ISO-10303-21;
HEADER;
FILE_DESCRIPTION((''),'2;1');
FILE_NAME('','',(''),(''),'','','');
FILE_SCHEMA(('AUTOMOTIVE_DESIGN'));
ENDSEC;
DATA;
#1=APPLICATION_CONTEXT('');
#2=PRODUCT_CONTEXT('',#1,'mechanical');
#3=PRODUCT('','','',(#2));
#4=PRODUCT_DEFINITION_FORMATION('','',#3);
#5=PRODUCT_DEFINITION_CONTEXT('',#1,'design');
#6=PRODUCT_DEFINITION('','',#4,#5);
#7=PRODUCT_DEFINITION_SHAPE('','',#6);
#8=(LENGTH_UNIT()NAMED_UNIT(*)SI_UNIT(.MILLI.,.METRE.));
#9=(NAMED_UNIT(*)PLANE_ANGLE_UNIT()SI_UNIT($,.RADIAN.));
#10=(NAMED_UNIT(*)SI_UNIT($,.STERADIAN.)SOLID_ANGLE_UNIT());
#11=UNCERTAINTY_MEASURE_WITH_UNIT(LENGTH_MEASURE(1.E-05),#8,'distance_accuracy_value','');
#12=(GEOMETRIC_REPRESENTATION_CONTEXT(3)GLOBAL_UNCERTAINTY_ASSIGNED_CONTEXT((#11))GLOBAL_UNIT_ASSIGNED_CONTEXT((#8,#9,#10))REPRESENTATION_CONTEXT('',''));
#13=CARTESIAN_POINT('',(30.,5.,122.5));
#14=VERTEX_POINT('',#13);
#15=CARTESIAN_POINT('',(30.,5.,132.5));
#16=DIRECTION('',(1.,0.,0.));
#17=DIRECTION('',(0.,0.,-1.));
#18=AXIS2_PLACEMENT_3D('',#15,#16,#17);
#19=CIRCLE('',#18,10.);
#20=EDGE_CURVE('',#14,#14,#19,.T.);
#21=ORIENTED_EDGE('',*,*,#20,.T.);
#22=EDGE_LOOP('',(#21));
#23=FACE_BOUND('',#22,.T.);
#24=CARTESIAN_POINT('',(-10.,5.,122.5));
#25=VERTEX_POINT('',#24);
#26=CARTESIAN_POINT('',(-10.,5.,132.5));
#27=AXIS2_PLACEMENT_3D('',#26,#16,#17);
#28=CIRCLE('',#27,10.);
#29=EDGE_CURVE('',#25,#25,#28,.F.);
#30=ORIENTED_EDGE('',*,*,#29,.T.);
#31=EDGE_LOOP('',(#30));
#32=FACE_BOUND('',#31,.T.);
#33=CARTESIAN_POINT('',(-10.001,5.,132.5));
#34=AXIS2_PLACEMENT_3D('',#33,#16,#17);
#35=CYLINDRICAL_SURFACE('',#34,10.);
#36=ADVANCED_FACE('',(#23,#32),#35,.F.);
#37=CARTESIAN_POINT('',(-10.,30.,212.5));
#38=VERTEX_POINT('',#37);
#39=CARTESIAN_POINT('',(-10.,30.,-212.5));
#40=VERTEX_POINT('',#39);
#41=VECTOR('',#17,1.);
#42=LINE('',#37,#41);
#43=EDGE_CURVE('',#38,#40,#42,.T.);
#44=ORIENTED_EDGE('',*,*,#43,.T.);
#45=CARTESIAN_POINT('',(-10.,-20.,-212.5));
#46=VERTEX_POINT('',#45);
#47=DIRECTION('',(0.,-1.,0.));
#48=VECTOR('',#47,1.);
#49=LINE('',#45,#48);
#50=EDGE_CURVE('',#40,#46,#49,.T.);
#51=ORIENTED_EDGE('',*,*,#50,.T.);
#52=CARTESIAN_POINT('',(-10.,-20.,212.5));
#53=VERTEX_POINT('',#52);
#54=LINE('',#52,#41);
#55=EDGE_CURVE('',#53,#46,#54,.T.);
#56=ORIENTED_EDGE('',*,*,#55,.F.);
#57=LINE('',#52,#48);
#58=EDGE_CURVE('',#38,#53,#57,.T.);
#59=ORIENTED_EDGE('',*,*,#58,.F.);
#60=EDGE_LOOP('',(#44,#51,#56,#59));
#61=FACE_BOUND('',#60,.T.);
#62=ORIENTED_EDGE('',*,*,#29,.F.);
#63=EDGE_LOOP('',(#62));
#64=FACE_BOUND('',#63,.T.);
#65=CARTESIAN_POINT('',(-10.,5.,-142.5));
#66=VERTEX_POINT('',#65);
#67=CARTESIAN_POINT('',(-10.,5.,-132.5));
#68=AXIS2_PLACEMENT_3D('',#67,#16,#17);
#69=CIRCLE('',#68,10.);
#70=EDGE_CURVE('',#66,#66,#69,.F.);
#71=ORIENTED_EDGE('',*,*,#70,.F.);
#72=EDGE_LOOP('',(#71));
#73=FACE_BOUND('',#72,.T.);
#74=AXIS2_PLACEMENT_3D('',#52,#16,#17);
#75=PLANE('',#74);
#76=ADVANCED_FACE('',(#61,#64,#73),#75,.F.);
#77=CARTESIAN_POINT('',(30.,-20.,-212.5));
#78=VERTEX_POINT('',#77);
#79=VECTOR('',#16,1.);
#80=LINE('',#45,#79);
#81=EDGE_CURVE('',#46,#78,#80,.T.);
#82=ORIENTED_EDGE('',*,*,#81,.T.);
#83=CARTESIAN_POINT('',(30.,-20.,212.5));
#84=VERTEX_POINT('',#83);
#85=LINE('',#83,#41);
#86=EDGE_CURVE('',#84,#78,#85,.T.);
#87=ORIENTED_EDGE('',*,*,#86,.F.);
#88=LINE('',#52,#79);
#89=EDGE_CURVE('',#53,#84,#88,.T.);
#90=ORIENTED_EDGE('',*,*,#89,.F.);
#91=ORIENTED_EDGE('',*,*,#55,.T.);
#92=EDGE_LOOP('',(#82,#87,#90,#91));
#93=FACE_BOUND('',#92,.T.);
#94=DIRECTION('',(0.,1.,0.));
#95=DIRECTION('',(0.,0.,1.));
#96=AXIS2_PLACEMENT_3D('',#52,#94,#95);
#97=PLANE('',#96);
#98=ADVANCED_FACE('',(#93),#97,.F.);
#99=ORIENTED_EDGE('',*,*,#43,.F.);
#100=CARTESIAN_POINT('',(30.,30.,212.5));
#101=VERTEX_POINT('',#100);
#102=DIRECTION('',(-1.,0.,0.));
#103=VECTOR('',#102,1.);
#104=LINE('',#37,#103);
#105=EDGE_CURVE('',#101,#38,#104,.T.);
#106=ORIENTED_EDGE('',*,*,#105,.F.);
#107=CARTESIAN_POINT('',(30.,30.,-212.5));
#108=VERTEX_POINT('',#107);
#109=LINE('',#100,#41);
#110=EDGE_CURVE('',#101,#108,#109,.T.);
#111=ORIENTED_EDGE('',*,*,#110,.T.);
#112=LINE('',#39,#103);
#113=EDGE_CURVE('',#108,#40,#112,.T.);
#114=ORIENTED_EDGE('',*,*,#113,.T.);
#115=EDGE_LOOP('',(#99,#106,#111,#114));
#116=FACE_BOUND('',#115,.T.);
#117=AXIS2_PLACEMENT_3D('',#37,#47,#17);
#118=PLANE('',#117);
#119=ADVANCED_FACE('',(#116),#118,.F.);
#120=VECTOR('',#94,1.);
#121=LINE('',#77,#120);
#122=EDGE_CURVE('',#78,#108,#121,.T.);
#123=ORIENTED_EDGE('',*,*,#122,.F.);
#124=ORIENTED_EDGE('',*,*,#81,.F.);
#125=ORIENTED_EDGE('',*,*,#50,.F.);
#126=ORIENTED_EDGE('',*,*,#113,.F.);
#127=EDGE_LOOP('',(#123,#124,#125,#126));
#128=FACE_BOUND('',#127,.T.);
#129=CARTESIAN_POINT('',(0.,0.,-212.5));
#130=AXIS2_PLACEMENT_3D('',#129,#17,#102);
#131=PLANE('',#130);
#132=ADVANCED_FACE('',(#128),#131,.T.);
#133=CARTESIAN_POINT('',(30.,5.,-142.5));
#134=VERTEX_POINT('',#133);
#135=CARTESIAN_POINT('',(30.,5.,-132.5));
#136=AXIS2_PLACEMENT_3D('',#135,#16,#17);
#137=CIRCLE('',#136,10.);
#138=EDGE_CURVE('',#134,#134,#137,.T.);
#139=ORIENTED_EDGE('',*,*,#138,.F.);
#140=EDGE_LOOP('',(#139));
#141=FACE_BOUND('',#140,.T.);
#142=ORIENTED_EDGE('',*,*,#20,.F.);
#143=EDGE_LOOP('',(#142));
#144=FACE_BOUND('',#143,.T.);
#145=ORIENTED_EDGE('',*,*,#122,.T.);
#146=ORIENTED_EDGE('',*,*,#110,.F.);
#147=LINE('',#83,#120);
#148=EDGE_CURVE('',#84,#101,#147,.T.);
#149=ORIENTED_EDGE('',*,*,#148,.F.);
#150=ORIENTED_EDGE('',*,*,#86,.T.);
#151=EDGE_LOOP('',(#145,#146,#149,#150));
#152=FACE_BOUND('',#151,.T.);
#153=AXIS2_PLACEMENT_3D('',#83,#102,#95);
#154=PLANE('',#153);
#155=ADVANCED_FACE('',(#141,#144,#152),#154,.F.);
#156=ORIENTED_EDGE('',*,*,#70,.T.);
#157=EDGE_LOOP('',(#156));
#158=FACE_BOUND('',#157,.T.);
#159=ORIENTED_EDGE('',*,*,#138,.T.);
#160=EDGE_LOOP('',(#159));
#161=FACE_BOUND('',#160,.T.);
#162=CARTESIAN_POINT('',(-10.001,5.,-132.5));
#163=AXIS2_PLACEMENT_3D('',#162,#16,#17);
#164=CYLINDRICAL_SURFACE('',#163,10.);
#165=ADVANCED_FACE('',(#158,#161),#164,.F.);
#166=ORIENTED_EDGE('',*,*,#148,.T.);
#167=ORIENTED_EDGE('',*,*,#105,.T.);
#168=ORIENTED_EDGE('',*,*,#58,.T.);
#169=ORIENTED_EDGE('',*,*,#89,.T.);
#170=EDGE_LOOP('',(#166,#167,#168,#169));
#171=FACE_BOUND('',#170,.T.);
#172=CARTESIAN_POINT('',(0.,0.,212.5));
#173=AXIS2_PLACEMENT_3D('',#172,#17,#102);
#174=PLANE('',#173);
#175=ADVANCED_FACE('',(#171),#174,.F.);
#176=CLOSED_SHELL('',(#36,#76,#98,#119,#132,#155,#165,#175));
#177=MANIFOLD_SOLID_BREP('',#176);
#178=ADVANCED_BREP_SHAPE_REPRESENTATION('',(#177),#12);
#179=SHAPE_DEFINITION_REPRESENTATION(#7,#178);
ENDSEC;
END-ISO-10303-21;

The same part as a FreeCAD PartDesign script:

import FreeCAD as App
import Part
import Sketcher


def add_polygon(sketch, points):
    """Adds a closed chain of lines whose ends are joined by coincident constraints."""
    first, n = sketch.GeometryCount, len(points)
    for a, b in zip(points, points[1:] + points[:1]):
        sketch.addGeometry(Part.LineSegment(App.Vector(*a, 0), App.Vector(*b, 0)), False)
    for i in range(n):
        sketch.addConstraint(Sketcher.Constraint("Coincident", first + i, 2, first + (i + 1) % n, 1))

doc = App.newDocument("Part")
body = doc.addObject("PartDesign::Body", "Body")

# Sketch on XY plane
sketch1 = body.newObject("Sketcher::SketchObject", "Sketch")
sketch1.AttachmentSupport = (doc.getObject("XY_Plane"), [""])
sketch1.MapMode = "FlatFace"
add_polygon(sketch1, [(-10, 30), (-10, -20), (30, -20), (30, 30)])  # lines 0-3
sketch1.addConstraint([
    Sketcher.Constraint("Vertical", 0),
    Sketcher.Constraint("Horizontal", 1),
    Sketcher.Constraint("Vertical", 2),
    Sketcher.Constraint("Horizontal", 3),
    Sketcher.Constraint("DistanceX", 1, 1, 1, 2, 40.0),
    Sketcher.Constraint("DistanceY", 0, 2, 0, 1, 50.0),
    Sketcher.Constraint("DistanceX", 0, 2, -1, 1, 10.0),
    Sketcher.Constraint("DistanceY", 0, 2, -1, 1, 20.0),
])
pad1 = body.newObject("PartDesign::Pad", "Pad")
pad1.Profile = sketch1
pad1.Length = 425
pad1.Midplane = True

# Sketch on YZ plane
sketch2 = body.newObject("Sketcher::SketchObject", "Sketch001")
sketch2.AttachmentSupport = (doc.getObject("YZ_Plane"), [""])
sketch2.MapMode = "FlatFace"
sketch2.AttachmentOffset = App.Placement(App.Vector(0, 0, 30), App.Rotation())
sketch2.addGeometry(Part.Circle(App.Vector(5, 132, 0), App.Vector(0, 0, 1), 10), False)
sketch2.addConstraint([
    Sketcher.Constraint("Diameter", 0, 20.0),
    Sketcher.Constraint("DistanceX", -1, 1, 0, 3, 5.0),
    Sketcher.Constraint("DistanceY", -1, 1, 0, 3, 132.5),
])
pocket1 = body.newObject("PartDesign::Pocket", "Pocket")
pocket1.Profile = sketch2
pocket1.Type = "UpToFirst"

# Sketch on YZ plane
sketch3 = body.newObject("Sketcher::SketchObject", "Sketch002")
sketch3.AttachmentSupport = (doc.getObject("YZ_Plane"), [""])
sketch3.MapMode = "FlatFace"
sketch3.AttachmentOffset = App.Placement(App.Vector(0, 0, 30), App.Rotation())
sketch3.addGeometry(Part.Circle(App.Vector(5, -132, 0), App.Vector(0, 0, 1), 10), False)
sketch3.addConstraint([
    Sketcher.Constraint("Diameter", 0, 20.0),
    Sketcher.Constraint("DistanceX", -1, 1, 0, 3, 5.0),
    Sketcher.Constraint("DistanceY", 0, 3, -1, 1, 132.5),
])
pocket2 = body.newObject("PartDesign::Pocket", "Pocket001")
pocket2.Profile = sketch3
pocket2.Type = "UpToFirst"

doc.recompute()
